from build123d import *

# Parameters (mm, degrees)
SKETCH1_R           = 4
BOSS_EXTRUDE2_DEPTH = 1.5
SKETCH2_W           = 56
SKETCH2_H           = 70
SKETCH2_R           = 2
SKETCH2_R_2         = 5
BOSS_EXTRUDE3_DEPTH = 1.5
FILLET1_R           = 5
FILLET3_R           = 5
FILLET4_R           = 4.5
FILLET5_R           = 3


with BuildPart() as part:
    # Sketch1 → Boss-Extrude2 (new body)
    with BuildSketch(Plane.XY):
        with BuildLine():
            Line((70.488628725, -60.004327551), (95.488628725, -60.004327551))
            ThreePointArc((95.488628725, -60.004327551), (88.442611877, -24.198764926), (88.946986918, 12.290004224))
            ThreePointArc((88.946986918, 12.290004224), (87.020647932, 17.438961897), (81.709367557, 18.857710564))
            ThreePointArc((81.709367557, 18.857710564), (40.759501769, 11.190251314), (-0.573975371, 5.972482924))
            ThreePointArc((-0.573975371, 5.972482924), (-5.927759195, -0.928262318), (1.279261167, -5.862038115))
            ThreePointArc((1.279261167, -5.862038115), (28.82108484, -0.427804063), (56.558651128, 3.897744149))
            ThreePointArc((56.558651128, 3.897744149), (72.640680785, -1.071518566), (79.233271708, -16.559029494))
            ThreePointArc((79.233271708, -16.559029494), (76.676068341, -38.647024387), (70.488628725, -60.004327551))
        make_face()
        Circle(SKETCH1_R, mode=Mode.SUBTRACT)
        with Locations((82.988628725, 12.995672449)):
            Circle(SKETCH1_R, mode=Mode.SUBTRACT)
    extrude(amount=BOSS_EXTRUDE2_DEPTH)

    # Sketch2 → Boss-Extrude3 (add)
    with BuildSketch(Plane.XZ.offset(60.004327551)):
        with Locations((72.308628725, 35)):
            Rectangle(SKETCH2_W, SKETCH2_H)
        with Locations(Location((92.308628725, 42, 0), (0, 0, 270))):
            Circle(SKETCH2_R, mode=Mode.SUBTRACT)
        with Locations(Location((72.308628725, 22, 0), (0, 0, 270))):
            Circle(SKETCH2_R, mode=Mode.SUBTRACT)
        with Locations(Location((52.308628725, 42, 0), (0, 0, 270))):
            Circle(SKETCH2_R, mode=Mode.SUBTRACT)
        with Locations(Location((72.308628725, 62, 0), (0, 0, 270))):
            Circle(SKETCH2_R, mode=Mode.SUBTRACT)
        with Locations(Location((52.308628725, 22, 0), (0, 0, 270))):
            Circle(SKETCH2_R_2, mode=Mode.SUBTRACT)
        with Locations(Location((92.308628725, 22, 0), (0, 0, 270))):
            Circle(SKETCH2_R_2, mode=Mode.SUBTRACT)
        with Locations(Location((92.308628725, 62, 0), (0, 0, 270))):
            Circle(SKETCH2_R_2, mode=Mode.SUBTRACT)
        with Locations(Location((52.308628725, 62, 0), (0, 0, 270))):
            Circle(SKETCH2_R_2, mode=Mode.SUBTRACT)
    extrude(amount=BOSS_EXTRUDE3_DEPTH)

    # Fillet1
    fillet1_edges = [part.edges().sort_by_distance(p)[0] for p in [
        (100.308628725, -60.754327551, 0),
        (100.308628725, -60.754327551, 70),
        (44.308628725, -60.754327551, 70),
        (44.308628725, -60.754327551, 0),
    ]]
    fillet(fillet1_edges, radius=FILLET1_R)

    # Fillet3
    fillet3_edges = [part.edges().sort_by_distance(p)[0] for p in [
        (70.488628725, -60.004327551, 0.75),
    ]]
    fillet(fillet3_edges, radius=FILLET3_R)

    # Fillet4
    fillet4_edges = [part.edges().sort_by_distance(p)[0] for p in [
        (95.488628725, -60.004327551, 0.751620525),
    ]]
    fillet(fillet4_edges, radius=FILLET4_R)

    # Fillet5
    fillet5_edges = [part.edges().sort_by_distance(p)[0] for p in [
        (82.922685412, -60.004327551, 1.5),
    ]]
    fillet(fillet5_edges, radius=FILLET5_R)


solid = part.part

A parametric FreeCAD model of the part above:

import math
import FreeCAD as App
import Part
import Sketcher

V = App.Vector


def edges_at(feature, points):
    """Names of the edges that pass closest to the given points."""
    edges = feature.Shape.Edges
    near = lambda p: min(range(len(edges)), key=lambda i: edges[i].distToShape(Part.Vertex(*p))[0])
    return sorted({f"Edge{near(p) + 1}" for p in points})

doc = App.newDocument("Part")
body = doc.addObject("PartDesign::Body", "Body")

# Sketch on XY plane
sketch1 = body.newObject("Sketcher::SketchObject", "Sketch")
sketch1.AttachmentSupport = (doc.getObject("XY_Plane"), [""])
sketch1.MapMode = "FlatFace"
sketch1.addGeometry(Part.LineSegment(V(70.5, -60, 0), V(95.5, -60, 0)), False)
sketch1.addGeometry(Part.ArcOfCircle(Part.Circle(V(263.4, -8.4, 0), V(0, 0, 1), 175.7), math.radians(173), math.radians(197)), False)
sketch1.addGeometry(Part.ArcOfCircle(Part.Circle(V(83, 13, 0), V(0, 0, 1), 6), math.radians(-7), math.radians(102)), False)
sketch1.addGeometry(Part.ArcOfCircle(Part.Circle(V(-67.5, 702.8, 0), V(0, 0, 1), 700), math.radians(-84.51), math.radians(-77.69)), False)
sketch1.addGeometry(Part.ArcOfCircle(Part.Circle(V(0, 0, 0), V(0, 0, 1), 6), math.radians(95), math.radians(282)), False)
sketch1.addGeometry(Part.ArcOfCircle(Part.Circle(V(150.5, -689.8, 0), V(0, 0, 1), 700), math.radians(97.71), math.radians(102.31)), False)
sketch1.addGeometry(Part.ArcOfCircle(Part.Circle(V(59.2, -15.9, 0), V(0, 0, 1), 20), math.radians(-2), math.radians(98)), False)
sketch1.addGeometry(Part.ArcOfCircle(Part.Circle(V(-54.2, -12.3, 0), V(0, 0, 1), 133.5), math.radians(-20.93), math.radians(-1.83)), False)
sketch1.addGeometry(Part.Circle(V(0, 0, 0), V(0, 0, 1), 4), False)
sketch1.addGeometry(Part.Circle(V(83, 13, 0), V(0, 0, 1), 4), False)
sketch1.addConstraint(Sketcher.Constraint("Coincident", 0, 2, 1, 2))
sketch1.addConstraint(Sketcher.Constraint("Tangent", 1, 1, 2, 1))
sketch1.addConstraint(Sketcher.Constraint("Tangent", 2, 2, 3, 2))
sketch1.addConstraint(Sketcher.Constraint("Tangent", 3, 1, 4, 1))
sketch1.addConstraint(Sketcher.Constraint("Tangent", 4, 2, 5, 2))
sketch1.addConstraint(Sketcher.Constraint("Tangent", 5, 1, 6, 2))
sketch1.addConstraint(Sketcher.Constraint("Tangent", 6, 1, 7, 2))
sketch1.addConstraint(Sketcher.Constraint("Coincident", 7, 1, 0, 1))
sketch1.addConstraint(Sketcher.Constraint("Horizontal", 0))
sketch1.addConstraint(Sketcher.Constraint("Coincident", 4, 3, -1, 1))
sketch1.addConstraint(Sketcher.Constraint("Coincident", 8, 3, -1, 1))
sketch1.addConstraint(Sketcher.Constraint("Coincident", 9, 3, 2, 3))
sketch1.addConstraint(Sketcher.Constraint("Equal", 2, 4))
sketch1.addConstraint(Sketcher.Constraint("Equal", 3, 5))
sketch1.addConstraint(Sketcher.Constraint("Equal", 8, 9))
sketch1.addConstraint(Sketcher.Constraint("Diameter", 8, 8.0))
sketch1.addConstraint(Sketcher.Constraint("Radius", 2, 6.0))
sketch1.addConstraint(Sketcher.Constraint("Radius", 3, 700.0))
sketch1.addConstraint(Sketcher.Constraint("Radius", 6, 20.0))
sketch1.addConstraint(Sketcher.Constraint("DistanceX", 0, 1, 0, 2, 25.0))
sketch1.addConstraint(Sketcher.Constraint("DistanceY", 0, 2, 9, 3, 73.0))
sketch1.addConstraint(Sketcher.Constraint("DistanceX", 9, 3, 0, 2, 12.5))
sketch1.addConstraint(Sketcher.Constraint("Radius", 1, 175.655275))
sketch1.addConstraint(Sketcher.Constraint("Radius", 7, 133.516905))
sketch1.addConstraint(Sketcher.Constraint("DistanceY", 6, 1, 9, 3, 29.554702))
sketch1.addConstraint(Sketcher.Constraint("DistanceX", -1, 1, 1, 3, 263.383161))
sketch1.addConstraint(Sketcher.Constraint("DistanceX", 3, 3, -1, 1, 67.537769))
sketch1.addConstraint(Sketcher.Constraint("DistanceX", -1, 1, 6, 1, 79.233272))
pad1 = body.newObject("PartDesign::Pad", "Pad")
pad1.Profile = sketch1
pad1.Length = 1.5

# Sketch on XZ plane
sketch2 = body.newObject("Sketcher::SketchObject", "Sketch001")
sketch2.AttachmentSupport = (doc.getObject("XZ_Plane"), [""])
sketch2.MapMode = "FlatFace"
sketch2.AttachmentOffset = App.Placement(V(0, 0, 60.004328), App.Rotation())
sketch2.addGeometry(Part.LineSegment(V(44.3, 70, 0), V(44.3, 0, 0)), False)
sketch2.addGeometry(Part.LineSegment(V(44.3, 0, 0), V(100.3, 0, 0)), False)
sketch2.addGeometry(Part.LineSegment(V(100.3, 0, 0), V(100.3, 70, 0)), False)
sketch2.addGeometry(Part.LineSegment(V(100.3, 70, 0), V(44.3, 70, 0)), False)
sketch2.addGeometry(Part.Circle(V(52.3, 22, 0), V(0, 0, 1), 5), False)
sketch2.addGeometry(Part.Circle(V(72.3, 22, 0), V(0, 0, 1), 2), False)
sketch2.addGeometry(Part.Circle(V(92.3, 22, 0), V(0, 0, 1), 5), False)
sketch2.addGeometry(Part.Circle(V(52.3, 42, 0), V(0, 0, 1), 2), False)
sketch2.addGeometry(Part.Circle(V(52.3, 62, 0), V(0, 0, 1), 5), False)
sketch2.addGeometry(Part.Circle(V(92.3, 42, 0), V(0, 0, 1), 2), False)
sketch2.addGeometry(Part.Circle(V(72.3, 62, 0), V(0, 0, 1), 2), False)
sketch2.addGeometry(Part.Circle(V(92.3, 62, 0), V(0, 0, 1), 5), False)
sketch2.addConstraint(Sketcher.Constraint("Coincident", 0, 2, 1, 1))
sketch2.addConstraint(Sketcher.Constraint("Coincident", 1, 2, 2, 1))
sketch2.addConstraint(Sketcher.Constraint("Coincident", 2, 2, 3, 1))
sketch2.addConstraint(Sketcher.Constraint("Coincident", 3, 2, 0, 1))
sketch2.addConstraint(Sketcher.Constraint("Vertical", 0))
sketch2.addConstraint(Sketcher.Constraint("Horizontal", 1))
sketch2.addConstraint(Sketcher.Constraint("Vertical", 2))
sketch2.addConstraint(Sketcher.Constraint("Horizontal", 3))
sketch2.addConstraint(Sketcher.Constraint("Equal", 4, 6))
sketch2.addConstraint(Sketcher.Constraint("Equal", 5, 7))
sketch2.addConstraint(Sketcher.Constraint("Equal", 6, 8))
sketch2.addConstraint(Sketcher.Constraint("Equal", 7, 9))
sketch2.addConstraint(Sketcher.Constraint("Equal", 9, 10))
sketch2.addConstraint(Sketcher.Constraint("Equal", 8, 11))
sketch2.addConstraint(Sketcher.Constraint("PointOnObject", 0, 2, -1))
sketch2.addConstraint(Sketcher.Constraint("Horizontal", 4, 3, 5, 3))
sketch2.addConstraint(Sketcher.Constraint("Horizontal", 5, 3, 6, 3))
sketch2.addConstraint(Sketcher.Constraint("Horizontal", 7, 3, 9, 3))
sketch2.addConstraint(Sketcher.Constraint("Horizontal", 8, 3, 10, 3))
sketch2.addConstraint(Sketcher.Constraint("Horizontal", 10, 3, 11, 3))
sketch2.addConstraint(Sketcher.Constraint("Vertical", 4, 3, 7, 3))
sketch2.addConstraint(Sketcher.Constraint("Vertical", 7, 3, 8, 3))
sketch2.addConstraint(Sketcher.Constraint("Vertical", 6, 3, 9, 3))
sketch2.addConstraint(Sketcher.Constraint("Vertical", 5, 3, 10, 3))
sketch2.addConstraint(Sketcher.Constraint("Vertical", 9, 3, 11, 3))
sketch2.addConstraint(Sketcher.Constraint("Diameter", 4, 10.0))
sketch2.addConstraint(Sketcher.Constraint("Diameter", 5, 4.0))
sketch2.addConstraint(Sketcher.Constraint("DistanceX", 1, 1, 1, 2, 56.0))
sketch2.addConstraint(Sketcher.Constraint("DistanceY", 0, 2, 0, 1, 70.0))
sketch2.addConstraint(Sketcher.Constraint("DistanceY", -1, 1, 4, 3, 22.0))
sketch2.addConstraint(Sketcher.Constraint("DistanceY", -1, 1, 7, 3, 42.0))
sketch2.addConstraint(Sketcher.Constraint("DistanceY", -1, 1, 8, 3, 62.0))
sketch2.addConstraint(Sketcher.Constraint("DistanceX", 4, 3, 5, 3, 20.0))
sketch2.addConstraint(Sketcher.Constraint("DistanceX", 5, 3, 6, 3, 20.0))
sketch2.addConstraint(Sketcher.Constraint("DistanceX", 0, 2, 4, 3, 8.0))
sketch2.addConstraint(Sketcher.Constraint("DistanceX", -1, 1, 4, 3, 52.308629))
pad2 = body.newObject("PartDesign::Pad", "Pad001")
pad2.Profile = sketch2
pad2.Length = 1.5
doc.recompute()

fillet = body.newObject("PartDesign::Fillet", "Fillet")
fillet.Base = (pad2, edges_at(pad2, [
    (100.309, -60.754, 0),
    (100.309, -60.754, 70),
    (44.309, -60.754, 70),
    (44.309, -60.754, 0),
]))
fillet.Radius = 5
doc.recompute()

fillet2 = body.newObject("PartDesign::Fillet", "Fillet001")
fillet2.Base = (fillet, edges_at(fillet, [(70.489, -60.004, 0.75)]))
fillet2.Radius = 5
doc.recompute()

fillet3 = body.newObject("PartDesign::Fillet", "Fillet002")
fillet3.Base = (fillet2, edges_at(fillet2, [(95.489, -60.004, 0.752)]))
fillet3.Radius = 4.5
doc.recompute()

fillet4 = body.newObject("PartDesign::Fillet", "Fillet003")
fillet4.Base = (fillet3, edges_at(fillet3, [(82.923, -60.004, 1.5)]))
fillet4.Radius = 3

doc.recompute()
